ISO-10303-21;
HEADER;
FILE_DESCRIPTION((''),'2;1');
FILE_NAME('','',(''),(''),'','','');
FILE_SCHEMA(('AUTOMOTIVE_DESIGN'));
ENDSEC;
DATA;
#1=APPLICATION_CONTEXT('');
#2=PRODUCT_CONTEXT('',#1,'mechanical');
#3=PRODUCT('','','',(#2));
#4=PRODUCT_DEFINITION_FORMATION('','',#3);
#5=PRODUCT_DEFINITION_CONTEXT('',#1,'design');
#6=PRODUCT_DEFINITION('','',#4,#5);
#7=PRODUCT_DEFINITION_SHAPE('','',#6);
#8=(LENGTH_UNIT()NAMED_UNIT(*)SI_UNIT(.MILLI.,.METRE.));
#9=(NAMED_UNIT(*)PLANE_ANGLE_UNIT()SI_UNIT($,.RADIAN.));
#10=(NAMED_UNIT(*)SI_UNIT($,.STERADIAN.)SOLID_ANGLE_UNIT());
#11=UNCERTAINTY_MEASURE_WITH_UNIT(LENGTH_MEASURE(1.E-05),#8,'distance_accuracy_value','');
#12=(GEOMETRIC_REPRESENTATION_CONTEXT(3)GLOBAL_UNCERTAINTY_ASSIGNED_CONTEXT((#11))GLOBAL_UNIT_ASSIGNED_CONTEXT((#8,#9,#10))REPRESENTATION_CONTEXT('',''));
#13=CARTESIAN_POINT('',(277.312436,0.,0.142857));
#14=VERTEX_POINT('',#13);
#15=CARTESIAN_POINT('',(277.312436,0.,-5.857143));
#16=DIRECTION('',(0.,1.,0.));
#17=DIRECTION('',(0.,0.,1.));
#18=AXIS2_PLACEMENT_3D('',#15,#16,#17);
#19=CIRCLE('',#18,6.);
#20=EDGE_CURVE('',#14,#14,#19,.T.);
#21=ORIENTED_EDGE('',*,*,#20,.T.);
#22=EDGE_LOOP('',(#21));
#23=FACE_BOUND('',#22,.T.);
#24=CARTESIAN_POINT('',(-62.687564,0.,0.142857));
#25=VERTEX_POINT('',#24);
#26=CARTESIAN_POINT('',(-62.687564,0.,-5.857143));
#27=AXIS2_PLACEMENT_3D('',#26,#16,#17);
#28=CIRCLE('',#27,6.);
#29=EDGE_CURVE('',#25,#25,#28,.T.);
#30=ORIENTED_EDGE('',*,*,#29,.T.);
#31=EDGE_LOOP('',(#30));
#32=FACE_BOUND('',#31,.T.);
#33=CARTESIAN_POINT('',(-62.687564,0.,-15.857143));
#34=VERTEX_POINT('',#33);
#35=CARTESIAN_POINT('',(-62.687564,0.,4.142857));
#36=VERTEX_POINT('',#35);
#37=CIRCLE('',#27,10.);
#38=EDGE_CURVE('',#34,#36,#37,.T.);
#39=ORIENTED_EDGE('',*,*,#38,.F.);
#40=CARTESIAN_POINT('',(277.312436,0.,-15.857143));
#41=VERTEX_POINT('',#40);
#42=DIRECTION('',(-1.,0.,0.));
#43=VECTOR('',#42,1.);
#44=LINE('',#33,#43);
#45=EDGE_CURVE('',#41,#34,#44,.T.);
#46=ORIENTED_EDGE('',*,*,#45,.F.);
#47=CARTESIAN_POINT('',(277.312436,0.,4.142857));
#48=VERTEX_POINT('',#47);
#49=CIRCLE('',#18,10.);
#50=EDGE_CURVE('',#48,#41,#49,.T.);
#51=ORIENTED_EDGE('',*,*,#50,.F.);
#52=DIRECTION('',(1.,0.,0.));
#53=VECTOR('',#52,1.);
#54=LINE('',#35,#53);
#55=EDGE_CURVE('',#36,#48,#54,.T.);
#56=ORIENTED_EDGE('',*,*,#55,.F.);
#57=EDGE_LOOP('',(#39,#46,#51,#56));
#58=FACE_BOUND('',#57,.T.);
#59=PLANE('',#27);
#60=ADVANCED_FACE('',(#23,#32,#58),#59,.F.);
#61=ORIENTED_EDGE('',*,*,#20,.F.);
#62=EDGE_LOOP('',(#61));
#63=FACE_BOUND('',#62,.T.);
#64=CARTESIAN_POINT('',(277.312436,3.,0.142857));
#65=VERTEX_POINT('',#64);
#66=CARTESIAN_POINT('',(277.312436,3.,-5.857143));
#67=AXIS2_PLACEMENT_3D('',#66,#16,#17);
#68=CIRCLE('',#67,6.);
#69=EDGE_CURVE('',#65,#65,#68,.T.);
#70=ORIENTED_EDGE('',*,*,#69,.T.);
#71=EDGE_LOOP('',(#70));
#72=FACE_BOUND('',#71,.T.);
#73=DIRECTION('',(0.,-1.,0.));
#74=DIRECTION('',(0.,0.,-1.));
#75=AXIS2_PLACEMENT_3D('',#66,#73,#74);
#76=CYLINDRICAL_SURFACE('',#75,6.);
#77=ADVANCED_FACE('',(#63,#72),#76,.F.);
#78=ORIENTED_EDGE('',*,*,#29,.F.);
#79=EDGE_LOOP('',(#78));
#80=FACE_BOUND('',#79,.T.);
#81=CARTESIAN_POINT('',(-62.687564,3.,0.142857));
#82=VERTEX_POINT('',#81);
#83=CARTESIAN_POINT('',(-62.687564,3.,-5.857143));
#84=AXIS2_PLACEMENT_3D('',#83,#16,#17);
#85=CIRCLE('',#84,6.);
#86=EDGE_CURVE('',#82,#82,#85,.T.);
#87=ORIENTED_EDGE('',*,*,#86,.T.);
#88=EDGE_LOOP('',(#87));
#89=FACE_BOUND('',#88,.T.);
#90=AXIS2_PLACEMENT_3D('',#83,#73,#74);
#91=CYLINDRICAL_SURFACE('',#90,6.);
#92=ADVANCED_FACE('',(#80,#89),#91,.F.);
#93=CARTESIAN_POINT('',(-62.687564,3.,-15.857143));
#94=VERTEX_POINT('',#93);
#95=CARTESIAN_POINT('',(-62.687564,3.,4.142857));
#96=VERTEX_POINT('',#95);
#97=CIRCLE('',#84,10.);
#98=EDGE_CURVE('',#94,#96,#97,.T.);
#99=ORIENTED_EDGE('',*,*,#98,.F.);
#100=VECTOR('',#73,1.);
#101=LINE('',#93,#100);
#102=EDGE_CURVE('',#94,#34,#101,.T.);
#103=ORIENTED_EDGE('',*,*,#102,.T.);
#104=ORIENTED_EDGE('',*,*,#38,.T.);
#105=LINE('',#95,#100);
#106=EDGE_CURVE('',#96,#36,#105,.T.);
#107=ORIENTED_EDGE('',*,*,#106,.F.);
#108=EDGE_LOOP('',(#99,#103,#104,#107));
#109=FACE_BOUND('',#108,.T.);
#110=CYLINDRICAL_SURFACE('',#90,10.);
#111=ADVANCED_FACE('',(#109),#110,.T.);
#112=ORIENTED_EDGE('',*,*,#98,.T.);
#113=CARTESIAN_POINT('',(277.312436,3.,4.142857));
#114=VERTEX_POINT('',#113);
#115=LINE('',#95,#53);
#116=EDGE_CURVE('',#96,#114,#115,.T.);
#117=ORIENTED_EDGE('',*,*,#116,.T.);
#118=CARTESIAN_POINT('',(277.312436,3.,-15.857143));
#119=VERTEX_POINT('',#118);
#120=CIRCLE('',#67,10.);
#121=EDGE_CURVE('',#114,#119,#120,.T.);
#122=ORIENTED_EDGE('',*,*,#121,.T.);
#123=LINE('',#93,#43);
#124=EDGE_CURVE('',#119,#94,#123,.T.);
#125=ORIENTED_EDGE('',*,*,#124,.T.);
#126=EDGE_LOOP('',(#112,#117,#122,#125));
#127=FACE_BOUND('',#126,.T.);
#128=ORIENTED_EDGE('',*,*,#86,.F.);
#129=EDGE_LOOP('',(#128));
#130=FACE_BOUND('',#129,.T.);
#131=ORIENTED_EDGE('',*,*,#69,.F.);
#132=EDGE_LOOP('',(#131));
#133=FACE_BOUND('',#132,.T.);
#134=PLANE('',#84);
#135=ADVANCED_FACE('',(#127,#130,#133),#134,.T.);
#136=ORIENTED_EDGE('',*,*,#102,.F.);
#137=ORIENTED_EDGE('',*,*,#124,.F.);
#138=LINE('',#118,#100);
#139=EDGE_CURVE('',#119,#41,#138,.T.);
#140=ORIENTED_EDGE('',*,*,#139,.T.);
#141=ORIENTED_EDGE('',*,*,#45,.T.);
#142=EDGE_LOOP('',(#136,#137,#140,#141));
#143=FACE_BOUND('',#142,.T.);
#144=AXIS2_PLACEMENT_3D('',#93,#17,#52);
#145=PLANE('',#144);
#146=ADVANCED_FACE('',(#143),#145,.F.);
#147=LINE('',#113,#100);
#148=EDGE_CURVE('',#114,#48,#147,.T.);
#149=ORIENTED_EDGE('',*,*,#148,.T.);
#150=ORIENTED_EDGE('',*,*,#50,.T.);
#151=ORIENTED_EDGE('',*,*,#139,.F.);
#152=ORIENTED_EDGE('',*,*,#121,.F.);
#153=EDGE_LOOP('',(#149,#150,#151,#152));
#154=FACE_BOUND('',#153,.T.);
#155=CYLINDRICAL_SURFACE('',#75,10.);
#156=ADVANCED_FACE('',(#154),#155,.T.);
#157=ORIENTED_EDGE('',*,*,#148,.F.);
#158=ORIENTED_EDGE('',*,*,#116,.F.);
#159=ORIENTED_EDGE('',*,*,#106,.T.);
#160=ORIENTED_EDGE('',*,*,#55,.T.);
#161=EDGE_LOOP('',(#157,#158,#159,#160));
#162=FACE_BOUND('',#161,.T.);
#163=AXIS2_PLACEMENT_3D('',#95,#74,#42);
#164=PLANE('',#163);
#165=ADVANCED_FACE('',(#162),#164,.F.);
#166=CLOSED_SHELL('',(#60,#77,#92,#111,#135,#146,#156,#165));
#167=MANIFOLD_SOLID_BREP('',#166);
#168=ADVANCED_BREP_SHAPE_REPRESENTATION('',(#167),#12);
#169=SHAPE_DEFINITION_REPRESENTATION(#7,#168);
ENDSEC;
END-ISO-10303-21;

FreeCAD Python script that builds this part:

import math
import FreeCAD as App
import Part
import Sketcher

V = App.Vector
Q = App.Units.Quantity

doc = App.newDocument("Part")
params = doc.addObject("Spreadsheet::Sheet", "Params")
for row, (alias, value) in enumerate([
    ("sketch1_diameter", "12 mm"),
    ("sketch1_radius", "10 mm"),
    ("sketch1_width", "340 mm"),
    ("pad1_length", "3 mm"),
], start=1):
    params.set(f"A{row}", alias)
    params.set(f"B{row}", "=" + value)
    params.setAlias(f"B{row}", alias)

body = doc.addObject("PartDesign::Body", "Body")

# Sketch on XZ plane
sketch1 = body.newObject("Sketcher::SketchObject", "Sketch")
sketch1.AttachmentSupport = (doc.getObject("XZ_Plane"), [""])
sketch1.MapMode = "FlatFace"
sketch1.addGeometry([
    Part.LineSegment(V(277, -16, 0), V(-63, -16, 0)),  # 0
    Part.ArcOfCircle(Part.Circle(V(-63, -6, 0), V(0, 0, 1), 10), math.radians(90), math.radians(270)),  # 1
    Part.LineSegment(V(-63, 4, 0), V(277, 4, 0)),  # 2
    Part.ArcOfCircle(Part.Circle(V(277, -6, 0), V(0, 0, 1), 10), math.radians(-90), math.radians(90)),  # 3
    Part.Circle(V(277, -6, 0), V(0, 0, 1), 6),  # 4
    Part.Circle(V(-63, -6, 0), V(0, 0, 1), 6),  # 5
], False)
sketch1.addConstraint([
    Sketcher.Constraint("Tangent", 0, 2, 1, 2),
    Sketcher.Constraint("Tangent", 1, 1, 2, 1),
    Sketcher.Constraint("Tangent", 2, 2, 3, 2),
    Sketcher.Constraint("Tangent", 3, 1, 0, 1),
    Sketcher.Constraint("Horizontal", 0),
    Sketcher.Constraint("Horizontal", 2),
    Sketcher.Constraint("Coincident", 4, 3, 3, 3),
    Sketcher.Constraint("Coincident", 5, 3, 1, 3),
    Sketcher.Constraint("Equal", 4, 5),
    Sketcher.Constraint("Diameter", 4, Q("12 mm")),
    Sketcher.Constraint("Radius", 1, Q("10 mm")),
    Sketcher.Constraint("DistanceX", 0, 2, 0, 1, Q("340 mm")),
    Sketcher.Constraint("DistanceX", 1, 3, -1, 1, Q("62.687564 mm")),
    Sketcher.Constraint("DistanceY", 1, 3, -1, 1, Q("5.857143 mm")),
])
sketch1.setExpression("Constraints[9]", "Params.sketch1_diameter")
sketch1.setExpression("Constraints[10]", "Params.sketch1_radius")
sketch1.setExpression("Constraints[11]", "Params.sketch1_width")
pad1 = body.newObject("PartDesign::Pad", "Pad")
pad1.Profile = sketch1
pad1.setExpression("Length", "Params.pad1_length")
pad1.Reversed = True

doc.recompute()
